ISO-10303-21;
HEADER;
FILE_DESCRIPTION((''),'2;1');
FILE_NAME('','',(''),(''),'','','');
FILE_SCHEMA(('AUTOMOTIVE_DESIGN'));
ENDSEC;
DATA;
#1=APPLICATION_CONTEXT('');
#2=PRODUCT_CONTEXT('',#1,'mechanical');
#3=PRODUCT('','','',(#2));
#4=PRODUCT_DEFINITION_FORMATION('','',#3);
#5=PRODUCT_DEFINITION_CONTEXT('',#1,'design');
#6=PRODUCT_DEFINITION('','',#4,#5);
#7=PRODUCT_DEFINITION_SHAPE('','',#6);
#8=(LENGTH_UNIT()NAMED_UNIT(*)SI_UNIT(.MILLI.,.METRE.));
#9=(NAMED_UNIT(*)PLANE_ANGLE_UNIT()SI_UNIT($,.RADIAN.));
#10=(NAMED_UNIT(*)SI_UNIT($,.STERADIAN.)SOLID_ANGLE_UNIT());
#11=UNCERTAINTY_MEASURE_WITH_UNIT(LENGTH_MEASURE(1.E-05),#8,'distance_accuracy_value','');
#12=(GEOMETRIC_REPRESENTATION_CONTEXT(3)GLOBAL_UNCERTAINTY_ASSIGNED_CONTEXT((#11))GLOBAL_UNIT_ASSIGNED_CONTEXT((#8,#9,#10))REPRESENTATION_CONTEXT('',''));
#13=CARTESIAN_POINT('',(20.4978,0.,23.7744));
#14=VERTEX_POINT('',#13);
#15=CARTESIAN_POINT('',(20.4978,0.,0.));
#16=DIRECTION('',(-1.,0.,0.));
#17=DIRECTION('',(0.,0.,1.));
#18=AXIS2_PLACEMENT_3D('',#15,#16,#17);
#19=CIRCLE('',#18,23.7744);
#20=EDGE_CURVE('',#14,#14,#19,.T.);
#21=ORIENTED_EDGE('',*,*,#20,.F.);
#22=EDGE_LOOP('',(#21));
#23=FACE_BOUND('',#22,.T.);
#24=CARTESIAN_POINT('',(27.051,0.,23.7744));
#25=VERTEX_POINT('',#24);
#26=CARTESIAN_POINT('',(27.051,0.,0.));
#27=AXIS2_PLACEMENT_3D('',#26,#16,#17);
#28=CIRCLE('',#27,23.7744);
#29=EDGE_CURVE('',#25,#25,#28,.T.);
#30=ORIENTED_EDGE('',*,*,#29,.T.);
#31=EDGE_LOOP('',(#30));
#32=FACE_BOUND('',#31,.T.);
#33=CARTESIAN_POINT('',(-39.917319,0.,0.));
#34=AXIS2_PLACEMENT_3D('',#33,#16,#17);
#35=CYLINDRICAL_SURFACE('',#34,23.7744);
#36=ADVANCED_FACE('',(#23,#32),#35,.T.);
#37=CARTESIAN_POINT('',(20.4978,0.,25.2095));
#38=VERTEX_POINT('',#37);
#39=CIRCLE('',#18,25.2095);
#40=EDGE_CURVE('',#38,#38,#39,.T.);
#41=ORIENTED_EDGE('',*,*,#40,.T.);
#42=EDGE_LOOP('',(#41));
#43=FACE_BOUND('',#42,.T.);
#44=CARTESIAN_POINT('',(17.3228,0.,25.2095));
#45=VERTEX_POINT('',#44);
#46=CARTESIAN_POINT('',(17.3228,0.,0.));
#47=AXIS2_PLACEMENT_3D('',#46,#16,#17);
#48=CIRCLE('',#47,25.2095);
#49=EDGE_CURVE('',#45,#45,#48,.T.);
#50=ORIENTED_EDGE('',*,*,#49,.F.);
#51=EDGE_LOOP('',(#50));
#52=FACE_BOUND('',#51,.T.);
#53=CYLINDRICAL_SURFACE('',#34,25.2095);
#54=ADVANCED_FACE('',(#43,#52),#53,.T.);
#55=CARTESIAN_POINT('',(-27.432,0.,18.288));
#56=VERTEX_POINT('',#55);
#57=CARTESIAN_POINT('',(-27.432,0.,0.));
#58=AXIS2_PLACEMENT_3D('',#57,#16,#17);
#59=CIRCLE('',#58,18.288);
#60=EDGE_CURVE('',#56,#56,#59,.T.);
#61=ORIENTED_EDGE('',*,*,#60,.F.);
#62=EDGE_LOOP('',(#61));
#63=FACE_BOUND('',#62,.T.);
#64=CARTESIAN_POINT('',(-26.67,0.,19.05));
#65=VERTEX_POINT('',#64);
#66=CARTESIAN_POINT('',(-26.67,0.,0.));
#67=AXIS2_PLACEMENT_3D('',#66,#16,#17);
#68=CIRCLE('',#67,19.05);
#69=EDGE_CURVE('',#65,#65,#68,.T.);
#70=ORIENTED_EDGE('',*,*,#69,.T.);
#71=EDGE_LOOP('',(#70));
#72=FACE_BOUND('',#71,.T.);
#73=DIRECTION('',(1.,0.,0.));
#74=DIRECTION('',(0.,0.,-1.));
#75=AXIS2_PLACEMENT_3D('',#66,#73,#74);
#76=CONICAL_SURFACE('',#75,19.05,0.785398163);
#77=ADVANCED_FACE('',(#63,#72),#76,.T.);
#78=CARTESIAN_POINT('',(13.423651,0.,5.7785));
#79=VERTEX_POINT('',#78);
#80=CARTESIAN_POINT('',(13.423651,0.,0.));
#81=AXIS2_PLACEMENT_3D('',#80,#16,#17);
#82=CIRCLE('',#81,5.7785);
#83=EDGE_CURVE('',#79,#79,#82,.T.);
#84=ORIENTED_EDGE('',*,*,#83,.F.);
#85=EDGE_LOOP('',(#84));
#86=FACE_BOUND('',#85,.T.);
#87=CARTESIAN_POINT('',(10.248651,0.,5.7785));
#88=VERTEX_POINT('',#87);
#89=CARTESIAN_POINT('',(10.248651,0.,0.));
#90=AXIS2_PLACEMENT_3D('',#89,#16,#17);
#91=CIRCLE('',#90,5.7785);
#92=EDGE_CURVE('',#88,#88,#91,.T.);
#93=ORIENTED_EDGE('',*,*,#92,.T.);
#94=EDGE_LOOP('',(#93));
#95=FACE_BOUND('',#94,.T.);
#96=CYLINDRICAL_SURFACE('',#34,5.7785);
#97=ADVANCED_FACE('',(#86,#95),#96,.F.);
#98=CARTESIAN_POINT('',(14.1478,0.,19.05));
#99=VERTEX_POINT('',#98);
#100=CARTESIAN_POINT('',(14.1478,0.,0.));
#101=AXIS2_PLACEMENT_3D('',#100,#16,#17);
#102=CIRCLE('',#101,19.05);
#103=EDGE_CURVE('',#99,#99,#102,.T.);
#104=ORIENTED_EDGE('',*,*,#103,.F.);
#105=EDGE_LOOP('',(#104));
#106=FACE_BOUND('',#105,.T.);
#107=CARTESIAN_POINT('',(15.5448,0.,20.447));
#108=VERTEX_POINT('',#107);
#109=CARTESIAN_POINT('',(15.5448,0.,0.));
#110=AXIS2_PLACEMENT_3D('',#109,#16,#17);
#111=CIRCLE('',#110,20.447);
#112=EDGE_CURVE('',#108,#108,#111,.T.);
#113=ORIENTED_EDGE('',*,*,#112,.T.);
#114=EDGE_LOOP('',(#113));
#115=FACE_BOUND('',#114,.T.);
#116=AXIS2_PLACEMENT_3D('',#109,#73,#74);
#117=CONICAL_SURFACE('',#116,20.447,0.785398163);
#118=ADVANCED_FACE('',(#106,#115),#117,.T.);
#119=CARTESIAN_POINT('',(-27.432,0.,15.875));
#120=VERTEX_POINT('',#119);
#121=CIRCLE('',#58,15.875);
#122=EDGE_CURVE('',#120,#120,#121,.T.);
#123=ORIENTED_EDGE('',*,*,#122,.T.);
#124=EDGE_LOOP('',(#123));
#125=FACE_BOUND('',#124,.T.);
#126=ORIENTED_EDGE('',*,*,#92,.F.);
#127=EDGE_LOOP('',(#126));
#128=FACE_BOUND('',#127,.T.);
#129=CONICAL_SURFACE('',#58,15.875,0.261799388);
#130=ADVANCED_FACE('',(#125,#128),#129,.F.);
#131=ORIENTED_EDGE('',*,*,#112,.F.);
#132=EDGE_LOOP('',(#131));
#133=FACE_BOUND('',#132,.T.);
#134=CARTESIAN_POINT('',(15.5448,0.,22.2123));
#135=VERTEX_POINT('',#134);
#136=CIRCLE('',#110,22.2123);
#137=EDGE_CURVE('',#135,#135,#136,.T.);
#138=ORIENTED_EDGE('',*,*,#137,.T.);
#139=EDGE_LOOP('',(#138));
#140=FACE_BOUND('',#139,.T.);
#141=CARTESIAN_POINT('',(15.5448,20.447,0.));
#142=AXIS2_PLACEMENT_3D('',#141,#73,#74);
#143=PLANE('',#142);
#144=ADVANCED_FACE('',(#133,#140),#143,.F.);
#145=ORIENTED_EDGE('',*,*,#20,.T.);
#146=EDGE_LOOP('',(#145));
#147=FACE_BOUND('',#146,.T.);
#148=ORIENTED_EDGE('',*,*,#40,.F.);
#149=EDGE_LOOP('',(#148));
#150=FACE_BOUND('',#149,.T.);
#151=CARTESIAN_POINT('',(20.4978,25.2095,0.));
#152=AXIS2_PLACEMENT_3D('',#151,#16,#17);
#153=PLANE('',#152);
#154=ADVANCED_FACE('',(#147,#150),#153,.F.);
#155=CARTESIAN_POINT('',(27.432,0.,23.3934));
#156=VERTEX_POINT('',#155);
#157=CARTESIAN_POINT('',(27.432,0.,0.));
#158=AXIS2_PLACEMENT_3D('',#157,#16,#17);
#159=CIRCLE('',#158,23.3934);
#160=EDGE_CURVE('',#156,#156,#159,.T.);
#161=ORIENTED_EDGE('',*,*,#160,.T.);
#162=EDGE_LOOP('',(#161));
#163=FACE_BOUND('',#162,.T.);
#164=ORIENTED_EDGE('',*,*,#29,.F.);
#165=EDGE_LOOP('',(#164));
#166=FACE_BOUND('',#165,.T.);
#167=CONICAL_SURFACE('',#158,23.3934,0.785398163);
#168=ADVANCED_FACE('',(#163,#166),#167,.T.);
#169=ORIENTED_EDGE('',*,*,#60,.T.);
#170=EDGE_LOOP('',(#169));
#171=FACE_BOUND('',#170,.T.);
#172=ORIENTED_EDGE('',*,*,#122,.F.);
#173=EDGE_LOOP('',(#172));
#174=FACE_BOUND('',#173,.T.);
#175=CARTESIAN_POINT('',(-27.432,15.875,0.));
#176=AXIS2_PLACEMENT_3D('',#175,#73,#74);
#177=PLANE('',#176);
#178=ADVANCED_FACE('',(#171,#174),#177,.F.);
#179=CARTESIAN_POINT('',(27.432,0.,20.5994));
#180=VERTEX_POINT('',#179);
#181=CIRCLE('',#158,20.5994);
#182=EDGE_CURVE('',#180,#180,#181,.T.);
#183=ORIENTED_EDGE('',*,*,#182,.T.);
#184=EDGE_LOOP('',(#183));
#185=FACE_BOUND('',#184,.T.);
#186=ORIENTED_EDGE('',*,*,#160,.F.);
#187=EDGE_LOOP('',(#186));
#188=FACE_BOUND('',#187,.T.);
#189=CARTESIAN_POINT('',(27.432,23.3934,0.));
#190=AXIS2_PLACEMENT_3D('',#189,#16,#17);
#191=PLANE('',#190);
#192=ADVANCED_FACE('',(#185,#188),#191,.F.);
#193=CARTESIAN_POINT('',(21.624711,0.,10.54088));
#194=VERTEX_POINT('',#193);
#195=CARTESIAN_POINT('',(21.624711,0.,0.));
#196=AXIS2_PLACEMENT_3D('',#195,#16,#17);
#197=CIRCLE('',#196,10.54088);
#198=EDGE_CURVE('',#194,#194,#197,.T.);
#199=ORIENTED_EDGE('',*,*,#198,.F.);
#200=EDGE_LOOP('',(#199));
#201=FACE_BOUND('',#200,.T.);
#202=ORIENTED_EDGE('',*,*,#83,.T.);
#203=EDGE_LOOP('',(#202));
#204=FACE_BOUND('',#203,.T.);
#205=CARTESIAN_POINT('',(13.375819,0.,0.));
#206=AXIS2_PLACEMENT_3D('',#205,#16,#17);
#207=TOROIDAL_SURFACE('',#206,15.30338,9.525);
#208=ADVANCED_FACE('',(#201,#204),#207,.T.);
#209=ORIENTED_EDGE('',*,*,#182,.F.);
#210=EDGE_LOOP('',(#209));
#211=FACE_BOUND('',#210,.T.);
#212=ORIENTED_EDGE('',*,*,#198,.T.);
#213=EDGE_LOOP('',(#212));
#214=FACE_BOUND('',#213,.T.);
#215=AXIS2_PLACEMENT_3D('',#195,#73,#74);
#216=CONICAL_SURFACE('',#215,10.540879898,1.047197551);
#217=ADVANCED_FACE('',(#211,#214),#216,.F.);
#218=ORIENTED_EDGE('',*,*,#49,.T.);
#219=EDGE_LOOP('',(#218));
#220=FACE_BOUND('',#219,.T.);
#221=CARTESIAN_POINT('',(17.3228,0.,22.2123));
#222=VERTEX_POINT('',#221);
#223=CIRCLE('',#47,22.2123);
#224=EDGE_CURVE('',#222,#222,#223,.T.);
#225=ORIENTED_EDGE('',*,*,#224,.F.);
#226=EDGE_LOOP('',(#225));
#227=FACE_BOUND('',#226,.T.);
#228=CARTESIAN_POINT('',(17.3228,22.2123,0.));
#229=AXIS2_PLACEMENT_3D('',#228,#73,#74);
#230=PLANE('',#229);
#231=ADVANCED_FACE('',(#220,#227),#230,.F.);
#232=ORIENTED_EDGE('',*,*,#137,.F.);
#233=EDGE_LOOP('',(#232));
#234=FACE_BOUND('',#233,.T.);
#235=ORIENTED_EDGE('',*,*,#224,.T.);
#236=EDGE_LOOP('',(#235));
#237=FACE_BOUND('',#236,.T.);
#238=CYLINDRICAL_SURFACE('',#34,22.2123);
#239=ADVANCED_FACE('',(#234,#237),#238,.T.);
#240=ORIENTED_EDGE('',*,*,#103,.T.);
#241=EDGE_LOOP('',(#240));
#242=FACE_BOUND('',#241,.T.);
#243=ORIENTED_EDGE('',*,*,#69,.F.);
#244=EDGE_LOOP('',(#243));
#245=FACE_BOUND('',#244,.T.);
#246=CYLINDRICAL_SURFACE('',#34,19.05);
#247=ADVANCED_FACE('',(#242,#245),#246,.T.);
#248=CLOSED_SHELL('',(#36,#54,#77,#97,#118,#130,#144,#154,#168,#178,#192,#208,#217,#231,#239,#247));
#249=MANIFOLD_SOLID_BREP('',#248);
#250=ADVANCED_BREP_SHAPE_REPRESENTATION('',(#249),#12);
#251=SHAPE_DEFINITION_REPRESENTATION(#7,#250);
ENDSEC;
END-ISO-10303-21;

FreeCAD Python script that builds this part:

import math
import FreeCAD as App
import Part
import Sketcher
from FreeCAD import Vector
Q = App.Units.Quantity

doc = App.newDocument("Part")
body = doc.addObject("PartDesign::Body", "Body")

# Sketch on XY plane
sketch1 = doc.addObject("Sketcher::SketchObject", "Sketch")
body.addObject(sketch1)
sketch1.AttachmentSupport = (doc.XY_Plane, [""])
sketch1.MapMode = "FlatFace"
sketch1.addGeometry([
    Part.LineSegment(Vector(-27.432, 15.875, 0), Vector(10.248651, 5.7785, 0)),  # 0
    Part.LineSegment(Vector(10.248651, 5.7785, 0), Vector(13.423651, 5.7785, 0)),  # 1
    Part.ArcOfCircle(Part.Circle(Vector(13.375819, 15.30338, 0), Vector(0, 0, 1), 9.525), math.radians(-89.712273), math.radians(-30)),  # 2
    Part.LineSegment(Vector(21.624711, 10.54088, 0), Vector(27.432, 20.5994, 0)),  # 3
    Part.LineSegment(Vector(27.432, 20.5994, 0), Vector(27.432, 23.3934, 0)),  # 4
    Part.LineSegment(Vector(27.432, 23.3934, 0), Vector(27.051, 23.7744, 0)),  # 5
    Part.LineSegment(Vector(27.051, 23.7744, 0), Vector(20.4978, 23.7744, 0)),  # 6
    Part.LineSegment(Vector(20.4978, 23.7744, 0), Vector(20.4978, 25.2095, 0)),  # 7
    Part.LineSegment(Vector(20.4978, 25.2095, 0), Vector(17.3228, 25.2095, 0)),  # 8
    Part.LineSegment(Vector(17.3228, 25.2095, 0), Vector(17.3228, 22.2123, 0)),  # 9
    Part.LineSegment(Vector(17.3228, 22.2123, 0), Vector(15.5448, 22.2123, 0)),  # 10
    Part.LineSegment(Vector(15.5448, 22.2123, 0), Vector(15.5448, 20.447, 0)),  # 11
    Part.LineSegment(Vector(15.5448, 20.447, 0), Vector(14.1478, 19.05, 0)),  # 12
    Part.LineSegment(Vector(14.1478, 19.05, 0), Vector(-26.67, 19.05, 0)),  # 13
    Part.LineSegment(Vector(-26.67, 19.05, 0), Vector(-27.432, 18.288, 0)),  # 14
    Part.LineSegment(Vector(-27.432, 18.288, 0), Vector(-27.432, 15.875, 0)),  # 15
], False)
sketch1.addConstraint([
    Sketcher.Constraint("Coincident", 0, 2, 1, 1),
    Sketcher.Constraint("Coincident", 1, 2, 2, 1),
    Sketcher.Constraint("Tangent", 2, 2, 3, 1),
    Sketcher.Constraint("Coincident", 3, 2, 4, 1),
    Sketcher.Constraint("Coincident", 4, 2, 5, 1),
    Sketcher.Constraint("Coincident", 5, 2, 6, 1),
    Sketcher.Constraint("Coincident", 6, 2, 7, 1),
    Sketcher.Constraint("Coincident", 7, 2, 8, 1),
    Sketcher.Constraint("Coincident", 8, 2, 9, 1),
    Sketcher.Constraint("Coincident", 9, 2, 10, 1),
    Sketcher.Constraint("Coincident", 10, 2, 11, 1),
    Sketcher.Constraint("Coincident", 11, 2, 12, 1),
    Sketcher.Constraint("Coincident", 12, 2, 13, 1),
    Sketcher.Constraint("Coincident", 13, 2, 14, 1),
    Sketcher.Constraint("Coincident", 14, 2, 15, 1),
    Sketcher.Constraint("Coincident", 15, 2, 0, 1),
    Sketcher.Constraint("Horizontal", 1),
    Sketcher.Constraint("Vertical", 4),
    Sketcher.Constraint("Horizontal", 6),
    Sketcher.Constraint("Vertical", 7),
    Sketcher.Constraint("Horizontal", 8),
    Sketcher.Constraint("Vertical", 9),
    Sketcher.Constraint("Horizontal", 10),
    Sketcher.Constraint("Vertical", 11),
    Sketcher.Constraint("Horizontal", 13),
    Sketcher.Constraint("Vertical", 15),
    Sketcher.Constraint("Perpendicular", 5, 12),
    Sketcher.Constraint("Parallel", 12, 14),
    Sketcher.Constraint("Equal", 1, 8),
    Sketcher.Constraint("Angle", 0, Q("-15 deg")),
    Sketcher.Constraint("Angle", 3, Q("60 deg")),
    Sketcher.Constraint("Angle", 5, Q("135 deg")),
    Sketcher.Constraint("Radius", 2, Q("0.375 in")),
    Sketcher.Constraint("DistanceX", 10, 2, 10, 1, Q("0.07 in")),
    Sketcher.Constraint("DistanceY", 4, 1, 4, 2, Q("0.11 in")),
    Sketcher.Constraint("DistanceX", 1, 1, 1, 2, Q("0.125 in")),
    Sketcher.Constraint("DistanceX", 6, 2, 6, 1, Q("0.258 in")),
    Sketcher.Constraint("DistanceX", 13, 2, 13, 1, Q("1.607 in")),
    Sketcher.Constraint("DistanceY", 9, 2, 9, 1, Q("0.118 in")),
    Sketcher.Constraint("DistanceY", 15, 2, 15, 1, Q("0.095 in")),
    Sketcher.Constraint("DistanceX", -1, 1, 3, 2, Q("1.08 in")),
    Sketcher.Constraint("DistanceY", -1, 1, 12, 2, Q("0.75 in")),
    Sketcher.Constraint("DistanceX", 13, 2, -1, 1, Q("1.05 in")),
    Sketcher.Constraint("DistanceX", 14, 2, -1, 1, Q("1.08 in")),
    Sketcher.Constraint("DistanceY", 7, 1, 7, 2, Q("0.0565 in")),
    Sketcher.Constraint("DistanceY", 11, 2, 11, 1, Q("0.0695 in")),
    Sketcher.Constraint("DistanceY", -1, 1, 3, 2, Q("0.811 in")),
    Sketcher.Constraint("DistanceY", -1, 1, 0, 2, Q("0.2275 in")),
])
revolution = doc.addObject("PartDesign::Revolution", "Revolution")
body.addObject(revolution)
revolution.Profile = sketch1
revolution.ReferenceAxis = (sketch1, ["H_Axis"])
revolution.Angle = 360

doc.recompute()
